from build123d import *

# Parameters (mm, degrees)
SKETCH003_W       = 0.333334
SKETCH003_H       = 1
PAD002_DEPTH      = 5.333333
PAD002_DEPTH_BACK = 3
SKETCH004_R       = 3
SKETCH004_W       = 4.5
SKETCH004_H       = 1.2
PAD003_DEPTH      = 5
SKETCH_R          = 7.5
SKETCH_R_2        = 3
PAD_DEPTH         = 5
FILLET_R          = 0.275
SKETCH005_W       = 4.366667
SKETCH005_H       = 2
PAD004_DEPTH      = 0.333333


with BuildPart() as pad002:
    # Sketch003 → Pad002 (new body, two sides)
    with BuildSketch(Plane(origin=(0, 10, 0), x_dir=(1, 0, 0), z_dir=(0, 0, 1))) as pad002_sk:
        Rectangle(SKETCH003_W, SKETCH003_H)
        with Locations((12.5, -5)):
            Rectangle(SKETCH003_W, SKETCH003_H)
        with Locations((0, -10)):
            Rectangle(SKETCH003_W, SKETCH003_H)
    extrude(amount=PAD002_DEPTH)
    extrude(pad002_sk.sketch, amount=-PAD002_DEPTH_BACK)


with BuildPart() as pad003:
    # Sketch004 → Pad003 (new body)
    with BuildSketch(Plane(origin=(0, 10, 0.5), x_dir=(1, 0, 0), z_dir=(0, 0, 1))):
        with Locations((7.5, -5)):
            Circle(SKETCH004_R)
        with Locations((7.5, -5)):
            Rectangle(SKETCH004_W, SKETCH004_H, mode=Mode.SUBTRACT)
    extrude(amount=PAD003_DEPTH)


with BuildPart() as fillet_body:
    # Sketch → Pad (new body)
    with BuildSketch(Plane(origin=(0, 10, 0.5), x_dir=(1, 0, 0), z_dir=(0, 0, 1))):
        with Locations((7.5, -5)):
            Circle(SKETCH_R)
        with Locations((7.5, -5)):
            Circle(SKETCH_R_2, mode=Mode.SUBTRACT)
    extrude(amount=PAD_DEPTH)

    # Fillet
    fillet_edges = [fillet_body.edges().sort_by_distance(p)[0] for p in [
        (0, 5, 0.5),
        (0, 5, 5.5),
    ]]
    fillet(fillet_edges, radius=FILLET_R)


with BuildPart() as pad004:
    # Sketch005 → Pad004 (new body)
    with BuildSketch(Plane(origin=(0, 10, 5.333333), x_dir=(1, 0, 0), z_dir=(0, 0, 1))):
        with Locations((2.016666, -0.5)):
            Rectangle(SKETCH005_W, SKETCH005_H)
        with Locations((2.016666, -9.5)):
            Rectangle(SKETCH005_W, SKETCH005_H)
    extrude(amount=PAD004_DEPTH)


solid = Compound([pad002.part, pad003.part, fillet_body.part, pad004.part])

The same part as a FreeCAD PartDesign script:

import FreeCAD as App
import Part
import Sketcher


def edges_at(feature, points):
    """Names of the edges that pass closest to the given points."""
    edges = feature.Shape.Edges
    near = lambda p: min(range(len(edges)), key=lambda i: edges[i].distToShape(Part.Vertex(*p))[0])
    return sorted({f"Edge{near(p) + 1}" for p in points})

doc = App.newDocument("Part")
body = doc.addObject("PartDesign::Body", "Body")
body.AllowCompound = True

sketch1 = doc.addObject("Sketcher::SketchObject", "Sketch")
body.addObject(sketch1)
sketch1.AttachmentSupport = (doc.XY_Plane, [""])
sketch1.MapMode = "FlatFace"
sketch1.addGeometry(Part.LineSegment(App.Vector(-0.166667, 10.5, 0), App.Vector(-0.166667, 9.5, 0)), False)
sketch1.addGeometry(Part.LineSegment(App.Vector(-0.166667, 9.5, 0), App.Vector(0.166667, 9.5, 0)), False)
sketch1.addGeometry(Part.LineSegment(App.Vector(0.166667, 9.5, 0), App.Vector(0.166667, 10.5, 0)), False)
sketch1.addGeometry(Part.LineSegment(App.Vector(0.166667, 10.5, 0), App.Vector(-0.166667, 10.5, 0)), False)
sketch1.addGeometry(Part.LineSegment(App.Vector(12.333333, 5.5, 0), App.Vector(12.333333, 4.5, 0)), False)
sketch1.addGeometry(Part.LineSegment(App.Vector(12.333333, 4.5, 0), App.Vector(12.666667, 4.5, 0)), False)
sketch1.addGeometry(Part.LineSegment(App.Vector(12.666667, 4.5, 0), App.Vector(12.666667, 5.5, 0)), False)
sketch1.addGeometry(Part.LineSegment(App.Vector(12.666667, 5.5, 0), App.Vector(12.333333, 5.5, 0)), False)
sketch1.addGeometry(Part.LineSegment(App.Vector(-0.166667, 0.5, 0), App.Vector(-0.166667, -0.5, 0)), False)
sketch1.addGeometry(Part.LineSegment(App.Vector(-0.166667, -0.5, 0), App.Vector(0.166667, -0.5, 0)), False)
sketch1.addGeometry(Part.LineSegment(App.Vector(0.166667, -0.5, 0), App.Vector(0.166667, 0.5, 0)), False)
sketch1.addGeometry(Part.LineSegment(App.Vector(0.166667, 0.5, 0), App.Vector(-0.166667, 0.5, 0)), False)
sketch1.addConstraint(Sketcher.Constraint("Coincident", 0, 2, 1, 1))
sketch1.addConstraint(Sketcher.Constraint("Coincident", 1, 2, 2, 1))
sketch1.addConstraint(Sketcher.Constraint("Coincident", 2, 2, 3, 1))
sketch1.addConstraint(Sketcher.Constraint("Coincident", 3, 2, 0, 1))
sketch1.addConstraint(Sketcher.Constraint("Coincident", 4, 2, 5, 1))
sketch1.addConstraint(Sketcher.Constraint("Coincident", 5, 2, 6, 1))
sketch1.addConstraint(Sketcher.Constraint("Coincident", 6, 2, 7, 1))
sketch1.addConstraint(Sketcher.Constraint("Coincident", 7, 2, 4, 1))
sketch1.addConstraint(Sketcher.Constraint("Coincident", 8, 2, 9, 1))
sketch1.addConstraint(Sketcher.Constraint("Coincident", 9, 2, 10, 1))
sketch1.addConstraint(Sketcher.Constraint("Coincident", 10, 2, 11, 1))
sketch1.addConstraint(Sketcher.Constraint("Coincident", 11, 2, 8, 1))
sketch1.addConstraint(Sketcher.Constraint("Vertical", 0))
sketch1.addConstraint(Sketcher.Constraint("Horizontal", 1))
sketch1.addConstraint(Sketcher.Constraint("Vertical", 2))
sketch1.addConstraint(Sketcher.Constraint("Horizontal", 3))
sketch1.addConstraint(Sketcher.Constraint("Vertical", 4))
sketch1.addConstraint(Sketcher.Constraint("Horizontal", 5))
sketch1.addConstraint(Sketcher.Constraint("Vertical", 6))
sketch1.addConstraint(Sketcher.Constraint("Horizontal", 7))
sketch1.addConstraint(Sketcher.Constraint("Vertical", 8))
sketch1.addConstraint(Sketcher.Constraint("Horizontal", 9))
sketch1.addConstraint(Sketcher.Constraint("Vertical", 10))
sketch1.addConstraint(Sketcher.Constraint("Horizontal", 11))
sketch1.addConstraint(Sketcher.Constraint("Symmetric", 8, 2, 10, 2, -1, 1))
sketch1.addConstraint(Sketcher.Constraint("Vertical", 3, 2, 8, 2))
sketch1.addConstraint(Sketcher.Constraint("Vertical", 2, 2, 9, 2))
sketch1.addConstraint(Sketcher.Constraint("Equal", 3, 5))
sketch1.addConstraint(Sketcher.Constraint("Equal", 2, 4))
sketch1.addConstraint(Sketcher.Constraint("Equal", 6, 8))
sketch1.addConstraint(Sketcher.Constraint("DistanceY", 0, 2, 0, 1, 1.0))
sketch1.addConstraint(Sketcher.Constraint("DistanceY", 4, 2, 1, 2, 5.0))
sketch1.addConstraint(Sketcher.Constraint("DistanceY", 8, 2, 0, 2, 10.0))
sketch1.addConstraint(Sketcher.Constraint("DistanceX", 0, 2, 4, 2, 12.5))
sketch1.addConstraint(Sketcher.Constraint("DistanceX", 1, 1, 1, 2, 0.333334))
pad1 = doc.addObject("PartDesign::Pad", "Pad")
body.addObject(pad1)
pad1.Profile = sketch1
pad1.Type = "TwoLengths"
pad1.Length = 5.333333
pad1.Length2 = 3
body2 = doc.addObject("PartDesign::Body", "Body001")

sketch2 = doc.addObject("Sketcher::SketchObject", "Sketch001")
body2.addObject(sketch2)
sketch2.AttachmentSupport = (doc.getObject("XY_Plane001"), [""])
sketch2.MapMode = "FlatFace"
sketch2.AttachmentOffset = App.Placement(App.Vector(0, 0, 0.5), App.Rotation())
sketch2.addGeometry(Part.Circle(App.Vector(7.5, 5, 0), App.Vector(0, 0, 1), 3), False)
sketch2.addGeometry(Part.LineSegment(App.Vector(9.75, 4.4, 0), App.Vector(5.25, 4.4, 0)), False)
sketch2.addGeometry(Part.LineSegment(App.Vector(5.25, 4.4, 0), App.Vector(5.25, 5.6, 0)), False)
sketch2.addGeometry(Part.LineSegment(App.Vector(5.25, 5.6, 0), App.Vector(9.75, 5.6, 0)), False)
sketch2.addGeometry(Part.LineSegment(App.Vector(9.75, 5.6, 0), App.Vector(9.75, 4.4, 0)), False)
sketch2.addConstraint(Sketcher.Constraint("Coincident", 1, 2, 2, 1))
sketch2.addConstraint(Sketcher.Constraint("Coincident", 2, 2, 3, 1))
sketch2.addConstraint(Sketcher.Constraint("Coincident", 3, 2, 4, 1))
sketch2.addConstraint(Sketcher.Constraint("Coincident", 4, 2, 1, 1))
sketch2.addConstraint(Sketcher.Constraint("Horizontal", 1))
sketch2.addConstraint(Sketcher.Constraint("Vertical", 2))
sketch2.addConstraint(Sketcher.Constraint("Horizontal", 3))
sketch2.addConstraint(Sketcher.Constraint("Vertical", 4))
sketch2.addConstraint(Sketcher.Constraint("Diameter", 0, 6.0))
sketch2.addConstraint(Sketcher.Constraint("DistanceX", 1, 2, 1, 1, 4.5))
sketch2.addConstraint(Sketcher.Constraint("DistanceY", 2, 1, 2, 2, 1.2))
sketch2.addConstraint(Sketcher.Constraint("DistanceY", -1, 1, 0, 3, 5.0))
sketch2.addConstraint(Sketcher.Constraint("DistanceX", -1, 1, 0, 3, 7.5))
sketch2.addConstraint(Sketcher.Constraint("DistanceY", -1, 1, 1, 2, 4.4))
sketch2.addConstraint(Sketcher.Constraint("DistanceX", -1, 1, 1, 2, 5.25))
pad2 = doc.addObject("PartDesign::Pad", "Pad001")
body2.addObject(pad2)
pad2.Profile = sketch2
pad2.Length = 5
body3 = doc.addObject("PartDesign::Body", "Body002")

sketch3 = doc.addObject("Sketcher::SketchObject", "Sketch002")
body3.addObject(sketch3)
sketch3.AttachmentSupport = (doc.getObject("XY_Plane002"), [""])
sketch3.MapMode = "FlatFace"
sketch3.AttachmentOffset = App.Placement(App.Vector(0, 0, 0.5), App.Rotation())
sketch3.addGeometry(Part.Circle(App.Vector(7.5, 5, 0), App.Vector(0, 0, 1), 7.5), False)
sketch3.addGeometry(Part.Circle(App.Vector(7.5, 5, 0), App.Vector(0, 0, 1), 3), False)
sketch3.addConstraint(Sketcher.Constraint("Coincident", 1, 3, 0, 3))
sketch3.addConstraint(Sketcher.Constraint("Diameter", 0, 15.0))
sketch3.addConstraint(Sketcher.Constraint("Diameter", 1, 6.0))
sketch3.addConstraint(Sketcher.Constraint("DistanceY", -1, 1, 0, 3, 5.0))
sketch3.addConstraint(Sketcher.Constraint("DistanceX", -1, 1, 0, 3, 7.5))
pad3 = doc.addObject("PartDesign::Pad", "Pad002")
body3.addObject(pad3)
pad3.Profile = sketch3
pad3.Length = 5
doc.recompute()

fillet = doc.addObject("PartDesign::Fillet", "Fillet")
body3.addObject(fillet)
fillet.Base = (pad3, edges_at(pad3, [(0, 5, 0.5), (0, 5, 5.5)]))
fillet.Radius = 0.275
body4 = doc.addObject("PartDesign::Body", "Body003")
body4.AllowCompound = True

sketch4 = doc.addObject("Sketcher::SketchObject", "Sketch003")
body4.addObject(sketch4)
sketch4.AttachmentSupport = (doc.getObject("XY_Plane003"), [""])
sketch4.MapMode = "FlatFace"
sketch4.AttachmentOffset = App.Placement(App.Vector(0, 0, 5.333333), App.Rotation())
sketch4.addGeometry(Part.LineSegment(App.Vector(-0.166667, 10.5, 0), App.Vector(-0.166667, 8.5, 0)), False)
sketch4.addGeometry(Part.LineSegment(App.Vector(-0.166667, 8.5, 0), App.Vector(4.199999, 8.5, 0)), False)
sketch4.addGeometry(Part.LineSegment(App.Vector(4.199999, 8.5, 0), App.Vector(4.199999, 10.5, 0)), False)
sketch4.addGeometry(Part.LineSegment(App.Vector(4.199999, 10.5, 0), App.Vector(-0.166667, 10.5, 0)), False)
sketch4.addGeometry(Part.LineSegment(App.Vector(-0.166667, 1.5, 0), App.Vector(-0.166667, -0.5, 0)), False)
sketch4.addGeometry(Part.LineSegment(App.Vector(-0.166667, -0.5, 0), App.Vector(4.199999, -0.5, 0)), False)
sketch4.addGeometry(Part.LineSegment(App.Vector(4.199999, -0.5, 0), App.Vector(4.199999, 1.5, 0)), False)
sketch4.addGeometry(Part.LineSegment(App.Vector(4.199999, 1.5, 0), App.Vector(-0.166667, 1.5, 0)), False)
sketch4.addConstraint(Sketcher.Constraint("Coincident", 0, 2, 1, 1))
sketch4.addConstraint(Sketcher.Constraint("Coincident", 1, 2, 2, 1))
sketch4.addConstraint(Sketcher.Constraint("Coincident", 2, 2, 3, 1))
sketch4.addConstraint(Sketcher.Constraint("Coincident", 3, 2, 0, 1))
sketch4.addConstraint(Sketcher.Constraint("Coincident", 4, 2, 5, 1))
sketch4.addConstraint(Sketcher.Constraint("Coincident", 5, 2, 6, 1))
sketch4.addConstraint(Sketcher.Constraint("Coincident", 6, 2, 7, 1))
sketch4.addConstraint(Sketcher.Constraint("Coincident", 7, 2, 4, 1))
sketch4.addConstraint(Sketcher.Constraint("Vertical", 0))
sketch4.addConstraint(Sketcher.Constraint("Horizontal", 1))
sketch4.addConstraint(Sketcher.Constraint("Vertical", 2))
sketch4.addConstraint(Sketcher.Constraint("Horizontal", 3))
sketch4.addConstraint(Sketcher.Constraint("Vertical", 4))
sketch4.addConstraint(Sketcher.Constraint("Horizontal", 5))
sketch4.addConstraint(Sketcher.Constraint("Vertical", 6))
sketch4.addConstraint(Sketcher.Constraint("Horizontal", 7))
sketch4.addConstraint(Sketcher.Constraint("Vertical", 3, 2, 4, 2))
sketch4.addConstraint(Sketcher.Constraint("Vertical", 2, 2, 5, 2))
sketch4.addConstraint(Sketcher.Constraint("Equal", 2, 4))
sketch4.addConstraint(Sketcher.Constraint("DistanceY", 0, 2, 0, 1, 2.0))
sketch4.addConstraint(Sketcher.Constraint("DistanceY", 4, 2, 0, 2, 9.0))
sketch4.addConstraint(Sketcher.Constraint("DistanceY", -1, 1, 0, 2, 8.5))
sketch4.addConstraint(Sketcher.Constraint("DistanceX", -1, 1, 1, 2, 4.199999))
sketch4.addConstraint(Sketcher.Constraint("DistanceX", 1, 1, 1, 2, 4.366667))
pad4 = doc.addObject("PartDesign::Pad", "Pad003")
body4.addObject(pad4)
pad4.Profile = sketch4
pad4.Length = 0.333333

doc.recompute()
